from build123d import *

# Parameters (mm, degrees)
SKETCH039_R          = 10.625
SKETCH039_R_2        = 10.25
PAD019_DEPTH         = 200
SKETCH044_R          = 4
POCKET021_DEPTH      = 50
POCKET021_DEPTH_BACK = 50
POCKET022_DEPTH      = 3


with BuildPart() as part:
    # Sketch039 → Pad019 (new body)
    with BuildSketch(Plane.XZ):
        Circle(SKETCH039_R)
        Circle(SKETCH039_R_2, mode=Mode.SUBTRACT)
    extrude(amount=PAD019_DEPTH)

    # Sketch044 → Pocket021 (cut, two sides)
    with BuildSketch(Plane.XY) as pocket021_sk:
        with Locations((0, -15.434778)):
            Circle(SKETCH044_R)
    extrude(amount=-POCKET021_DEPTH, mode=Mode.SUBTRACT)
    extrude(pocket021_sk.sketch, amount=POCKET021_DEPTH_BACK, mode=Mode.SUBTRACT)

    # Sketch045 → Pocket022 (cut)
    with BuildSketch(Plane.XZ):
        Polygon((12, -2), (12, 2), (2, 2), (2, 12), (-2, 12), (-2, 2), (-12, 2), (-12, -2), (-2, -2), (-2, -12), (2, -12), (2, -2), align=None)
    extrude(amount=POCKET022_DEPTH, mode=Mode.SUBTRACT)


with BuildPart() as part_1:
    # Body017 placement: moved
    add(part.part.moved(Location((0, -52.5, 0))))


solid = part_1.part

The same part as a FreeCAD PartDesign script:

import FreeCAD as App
import Part
import Sketcher

doc = App.newDocument("Part")
body = doc.addObject("PartDesign::Body", "Body")

# Sketch on XZ plane
sketch1 = body.newObject("Sketcher::SketchObject", "Sketch")
sketch1.AttachmentSupport = (doc.getObject("XZ_Plane"), [""])
sketch1.MapMode = "FlatFace"
sketch1.addGeometry([
    Part.Circle(App.Vector(0, 0, 0), App.Vector(0, 0, 1), 10.625),
    Part.Circle(App.Vector(0, 0, 0), App.Vector(0, 0, 1), 10.25),
], False)
sketch1.addConstraint([
    Sketcher.Constraint("Coincident", 0, 3, -1, 1),
    Sketcher.Constraint("Coincident", 1, 3, -1, 1),
    Sketcher.Constraint("Diameter", 1, 20.5),
    Sketcher.Constraint("Diameter", 0, 21.25),
])
pad1 = body.newObject("PartDesign::Pad", "Pad")
pad1.Profile = sketch1
pad1.Length = 200

# Sketch on XY plane
sketch2 = body.newObject("Sketcher::SketchObject", "Sketch001")
sketch2.AttachmentSupport = (doc.getObject("XY_Plane"), [""])
sketch2.MapMode = "FlatFace"
sketch2.addGeometry(Part.Circle(App.Vector(0, -15.434778, 0), App.Vector(0, 0, 1), 4), False)
sketch2.addConstraint([
    Sketcher.Constraint("PointOnObject", 0, 3, -2),
    Sketcher.Constraint("Diameter", 0, 8.0),
    Sketcher.Constraint("DistanceY", 0, 3, -1, 1, 15.434778),
])
pocket1 = body.newObject("PartDesign::Pocket", "Pocket")
pocket1.Profile = sketch2
pocket1.Type = "ThroughAll"
pocket1.Midplane = True

# Sketch on XZ plane
sketch3 = body.newObject("Sketcher::SketchObject", "Sketch002")
sketch3.AttachmentSupport = (doc.getObject("XZ_Plane"), [""])
sketch3.MapMode = "FlatFace"
sketch3.addGeometry([
    Part.LineSegment(App.Vector(12, -2, 0), App.Vector(12, 2, 0)),  # 0
    Part.LineSegment(App.Vector(12, 2, 0), App.Vector(2, 2, 0)),  # 1
    Part.LineSegment(App.Vector(2, 2, 0), App.Vector(2, 12, 0)),  # 2
    Part.LineSegment(App.Vector(2, 12, 0), App.Vector(-2, 12, 0)),  # 3
    Part.LineSegment(App.Vector(-2, 12, 0), App.Vector(-2, 2, 0)),  # 4
    Part.LineSegment(App.Vector(-2, 2, 0), App.Vector(-12, 2, 0)),  # 5
    Part.LineSegment(App.Vector(-12, 2, 0), App.Vector(-12, -2, 0)),  # 6
    Part.LineSegment(App.Vector(-12, -2, 0), App.Vector(-2, -2, 0)),  # 7
    Part.LineSegment(App.Vector(-2, -2, 0), App.Vector(-2, -12, 0)),  # 8
    Part.LineSegment(App.Vector(-2, -12, 0), App.Vector(2, -12, 0)),  # 9
    Part.LineSegment(App.Vector(2, -12, 0), App.Vector(2, -2, 0)),  # 10
    Part.LineSegment(App.Vector(2, -2, 0), App.Vector(12, -2, 0)),  # 11
], False)
sketch3.addConstraint([
    Sketcher.Constraint("Coincident", 0, 2, 1, 1),
    Sketcher.Constraint("Coincident", 1, 2, 2, 1),
    Sketcher.Constraint("Coincident", 2, 2, 3, 1),
    Sketcher.Constraint("Coincident", 3, 2, 4, 1),
    Sketcher.Constraint("Coincident", 4, 2, 5, 1),
    Sketcher.Constraint("Coincident", 5, 2, 6, 1),
    Sketcher.Constraint("Coincident", 6, 2, 7, 1),
    Sketcher.Constraint("Coincident", 7, 2, 8, 1),
    Sketcher.Constraint("Coincident", 8, 2, 9, 1),
    Sketcher.Constraint("Coincident", 9, 2, 10, 1),
    Sketcher.Constraint("Coincident", 10, 2, 11, 1),
    Sketcher.Constraint("Coincident", 11, 2, 0, 1),
    Sketcher.Constraint("Vertical", 0),
    Sketcher.Constraint("Horizontal", 1),
    Sketcher.Constraint("Vertical", 2),
    Sketcher.Constraint("Horizontal", 3),
    Sketcher.Constraint("Vertical", 4),
    Sketcher.Constraint("Horizontal", 5),
    Sketcher.Constraint("Vertical", 6),
    Sketcher.Constraint("Horizontal", 7),
    Sketcher.Constraint("Vertical", 8),
    Sketcher.Constraint("Horizontal", 9),
    Sketcher.Constraint("Vertical", 10),
    Sketcher.Constraint("Horizontal", 11),
    Sketcher.Constraint("Symmetric", 0, 2, 6, 2, -1, 1),
    Sketcher.Constraint("Symmetric", 2, 2, 8, 2, -1, 1),
    Sketcher.Constraint("Symmetric", 4, 2, 10, 2, -1, 1),
    Sketcher.Constraint("Symmetric", 1, 2, 4, 2, -2),
    Sketcher.Constraint("Equal", 9, 0),
    Sketcher.Constraint("Equal", 11, 2),
    Sketcher.Constraint("DistanceX", 1, 2, 1, 1, 10.0),
    Sketcher.Constraint("DistanceX", 3, 2, 3, 1, 4.0),
])
pocket2 = body.newObject("PartDesign::Pocket", "Pocket001")
pocket2.Profile = sketch3
pocket2.Length = 3
pocket2.Reversed = True
body2 = doc.addObject("PartDesign::Body", "Body001")
doc.recompute()

body.Placement = App.Placement(App.Vector(0, -52.5, 0), App.Rotation(App.Vector(0, 0, 1), 0))
boolean = body2.newObject("PartDesign::Boolean", "Boolean")
boolean.Type = "Fuse"
boolean.addObjects([body])

doc.recompute()
